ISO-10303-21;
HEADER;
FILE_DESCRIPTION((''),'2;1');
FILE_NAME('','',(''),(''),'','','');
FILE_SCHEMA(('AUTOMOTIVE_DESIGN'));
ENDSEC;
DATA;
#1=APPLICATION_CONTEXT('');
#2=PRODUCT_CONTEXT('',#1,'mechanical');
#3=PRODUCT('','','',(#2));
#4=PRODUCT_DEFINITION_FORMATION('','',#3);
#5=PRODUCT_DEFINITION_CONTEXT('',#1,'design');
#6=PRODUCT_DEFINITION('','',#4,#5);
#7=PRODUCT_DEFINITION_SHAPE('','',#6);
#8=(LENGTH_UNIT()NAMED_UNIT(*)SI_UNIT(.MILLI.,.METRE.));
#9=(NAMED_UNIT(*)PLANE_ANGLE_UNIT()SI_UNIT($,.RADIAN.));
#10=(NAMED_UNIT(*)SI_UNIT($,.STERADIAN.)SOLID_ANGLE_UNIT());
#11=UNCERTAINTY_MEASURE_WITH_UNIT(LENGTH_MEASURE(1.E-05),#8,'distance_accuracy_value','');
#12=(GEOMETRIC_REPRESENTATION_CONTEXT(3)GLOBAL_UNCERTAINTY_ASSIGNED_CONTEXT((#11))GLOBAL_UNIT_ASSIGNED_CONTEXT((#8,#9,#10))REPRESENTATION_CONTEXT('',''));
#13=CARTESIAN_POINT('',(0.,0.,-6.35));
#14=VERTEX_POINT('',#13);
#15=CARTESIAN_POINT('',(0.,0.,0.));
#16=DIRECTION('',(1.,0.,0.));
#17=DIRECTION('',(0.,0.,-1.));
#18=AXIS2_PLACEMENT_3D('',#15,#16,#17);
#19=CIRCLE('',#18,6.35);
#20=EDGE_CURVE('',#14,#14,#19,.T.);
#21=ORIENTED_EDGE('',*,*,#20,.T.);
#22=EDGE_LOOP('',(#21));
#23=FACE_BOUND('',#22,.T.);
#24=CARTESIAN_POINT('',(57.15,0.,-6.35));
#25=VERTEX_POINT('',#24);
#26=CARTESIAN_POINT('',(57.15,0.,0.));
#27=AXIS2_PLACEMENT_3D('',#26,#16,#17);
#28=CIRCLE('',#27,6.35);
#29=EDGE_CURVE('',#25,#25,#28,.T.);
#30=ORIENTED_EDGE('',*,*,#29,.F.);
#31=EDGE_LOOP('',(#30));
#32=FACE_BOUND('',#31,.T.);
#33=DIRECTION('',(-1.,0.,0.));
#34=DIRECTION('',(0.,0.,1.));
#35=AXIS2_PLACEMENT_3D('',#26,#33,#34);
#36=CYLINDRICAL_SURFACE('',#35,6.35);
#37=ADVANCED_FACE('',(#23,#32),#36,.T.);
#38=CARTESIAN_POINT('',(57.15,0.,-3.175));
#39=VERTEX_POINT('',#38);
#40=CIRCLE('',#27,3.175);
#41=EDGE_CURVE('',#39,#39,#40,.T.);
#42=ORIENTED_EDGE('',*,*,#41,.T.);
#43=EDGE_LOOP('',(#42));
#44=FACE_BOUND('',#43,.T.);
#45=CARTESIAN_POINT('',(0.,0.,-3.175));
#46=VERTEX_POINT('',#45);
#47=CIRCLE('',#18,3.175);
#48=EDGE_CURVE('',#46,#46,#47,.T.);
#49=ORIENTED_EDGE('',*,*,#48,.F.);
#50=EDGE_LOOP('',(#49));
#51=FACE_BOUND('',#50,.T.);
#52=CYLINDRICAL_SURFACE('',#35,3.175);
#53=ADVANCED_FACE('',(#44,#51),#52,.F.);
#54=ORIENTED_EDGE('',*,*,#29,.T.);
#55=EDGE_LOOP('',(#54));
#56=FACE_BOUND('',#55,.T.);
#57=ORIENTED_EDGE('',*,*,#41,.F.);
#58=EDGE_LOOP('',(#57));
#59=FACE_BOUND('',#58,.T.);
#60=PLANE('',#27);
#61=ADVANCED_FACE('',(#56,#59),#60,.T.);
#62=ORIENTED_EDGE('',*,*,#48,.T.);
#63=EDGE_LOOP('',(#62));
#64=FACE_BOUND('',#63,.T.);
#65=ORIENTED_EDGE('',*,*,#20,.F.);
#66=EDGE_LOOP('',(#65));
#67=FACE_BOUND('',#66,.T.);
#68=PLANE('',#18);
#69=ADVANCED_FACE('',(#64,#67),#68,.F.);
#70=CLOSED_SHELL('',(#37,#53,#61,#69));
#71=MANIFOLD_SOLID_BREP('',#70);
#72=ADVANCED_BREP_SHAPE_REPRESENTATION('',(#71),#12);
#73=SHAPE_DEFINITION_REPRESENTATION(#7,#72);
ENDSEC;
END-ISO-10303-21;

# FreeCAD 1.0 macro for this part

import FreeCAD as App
import Part
import Sketcher
from FreeCAD import Vector
Q = App.Units.Quantity

doc = App.newDocument("Part")
body = doc.addObject("PartDesign::Body", "Body")

sketch1 = body.newObject("Sketcher::SketchObject", "Sketch")
sketch1.AttachmentSupport = (doc.getObject("YZ_Plane"), [""])
sketch1.MapMode = "FlatFace"
sketch1.addGeometry([
    Part.Circle(Vector(0, 0, 0), Vector(0, 0, 1), 6.35),
    Part.Circle(Vector(0, 0, 0), Vector(0, 0, 1), 3.175),
], False)
sketch1.addConstraint([
    Sketcher.Constraint("Coincident", 0, 3, -1, 1),
    Sketcher.Constraint("Coincident", 1, 3, -1, 1),
    Sketcher.Constraint("Diameter", 0, Q("0.5 in")),
    Sketcher.Constraint("Diameter", 1, Q("0.25 in")),
])
pad1 = body.newObject("PartDesign::Pad", "Pad")
pad1.Profile = sketch1
pad1.Length = Q("2.25 in")

doc.recompute()
